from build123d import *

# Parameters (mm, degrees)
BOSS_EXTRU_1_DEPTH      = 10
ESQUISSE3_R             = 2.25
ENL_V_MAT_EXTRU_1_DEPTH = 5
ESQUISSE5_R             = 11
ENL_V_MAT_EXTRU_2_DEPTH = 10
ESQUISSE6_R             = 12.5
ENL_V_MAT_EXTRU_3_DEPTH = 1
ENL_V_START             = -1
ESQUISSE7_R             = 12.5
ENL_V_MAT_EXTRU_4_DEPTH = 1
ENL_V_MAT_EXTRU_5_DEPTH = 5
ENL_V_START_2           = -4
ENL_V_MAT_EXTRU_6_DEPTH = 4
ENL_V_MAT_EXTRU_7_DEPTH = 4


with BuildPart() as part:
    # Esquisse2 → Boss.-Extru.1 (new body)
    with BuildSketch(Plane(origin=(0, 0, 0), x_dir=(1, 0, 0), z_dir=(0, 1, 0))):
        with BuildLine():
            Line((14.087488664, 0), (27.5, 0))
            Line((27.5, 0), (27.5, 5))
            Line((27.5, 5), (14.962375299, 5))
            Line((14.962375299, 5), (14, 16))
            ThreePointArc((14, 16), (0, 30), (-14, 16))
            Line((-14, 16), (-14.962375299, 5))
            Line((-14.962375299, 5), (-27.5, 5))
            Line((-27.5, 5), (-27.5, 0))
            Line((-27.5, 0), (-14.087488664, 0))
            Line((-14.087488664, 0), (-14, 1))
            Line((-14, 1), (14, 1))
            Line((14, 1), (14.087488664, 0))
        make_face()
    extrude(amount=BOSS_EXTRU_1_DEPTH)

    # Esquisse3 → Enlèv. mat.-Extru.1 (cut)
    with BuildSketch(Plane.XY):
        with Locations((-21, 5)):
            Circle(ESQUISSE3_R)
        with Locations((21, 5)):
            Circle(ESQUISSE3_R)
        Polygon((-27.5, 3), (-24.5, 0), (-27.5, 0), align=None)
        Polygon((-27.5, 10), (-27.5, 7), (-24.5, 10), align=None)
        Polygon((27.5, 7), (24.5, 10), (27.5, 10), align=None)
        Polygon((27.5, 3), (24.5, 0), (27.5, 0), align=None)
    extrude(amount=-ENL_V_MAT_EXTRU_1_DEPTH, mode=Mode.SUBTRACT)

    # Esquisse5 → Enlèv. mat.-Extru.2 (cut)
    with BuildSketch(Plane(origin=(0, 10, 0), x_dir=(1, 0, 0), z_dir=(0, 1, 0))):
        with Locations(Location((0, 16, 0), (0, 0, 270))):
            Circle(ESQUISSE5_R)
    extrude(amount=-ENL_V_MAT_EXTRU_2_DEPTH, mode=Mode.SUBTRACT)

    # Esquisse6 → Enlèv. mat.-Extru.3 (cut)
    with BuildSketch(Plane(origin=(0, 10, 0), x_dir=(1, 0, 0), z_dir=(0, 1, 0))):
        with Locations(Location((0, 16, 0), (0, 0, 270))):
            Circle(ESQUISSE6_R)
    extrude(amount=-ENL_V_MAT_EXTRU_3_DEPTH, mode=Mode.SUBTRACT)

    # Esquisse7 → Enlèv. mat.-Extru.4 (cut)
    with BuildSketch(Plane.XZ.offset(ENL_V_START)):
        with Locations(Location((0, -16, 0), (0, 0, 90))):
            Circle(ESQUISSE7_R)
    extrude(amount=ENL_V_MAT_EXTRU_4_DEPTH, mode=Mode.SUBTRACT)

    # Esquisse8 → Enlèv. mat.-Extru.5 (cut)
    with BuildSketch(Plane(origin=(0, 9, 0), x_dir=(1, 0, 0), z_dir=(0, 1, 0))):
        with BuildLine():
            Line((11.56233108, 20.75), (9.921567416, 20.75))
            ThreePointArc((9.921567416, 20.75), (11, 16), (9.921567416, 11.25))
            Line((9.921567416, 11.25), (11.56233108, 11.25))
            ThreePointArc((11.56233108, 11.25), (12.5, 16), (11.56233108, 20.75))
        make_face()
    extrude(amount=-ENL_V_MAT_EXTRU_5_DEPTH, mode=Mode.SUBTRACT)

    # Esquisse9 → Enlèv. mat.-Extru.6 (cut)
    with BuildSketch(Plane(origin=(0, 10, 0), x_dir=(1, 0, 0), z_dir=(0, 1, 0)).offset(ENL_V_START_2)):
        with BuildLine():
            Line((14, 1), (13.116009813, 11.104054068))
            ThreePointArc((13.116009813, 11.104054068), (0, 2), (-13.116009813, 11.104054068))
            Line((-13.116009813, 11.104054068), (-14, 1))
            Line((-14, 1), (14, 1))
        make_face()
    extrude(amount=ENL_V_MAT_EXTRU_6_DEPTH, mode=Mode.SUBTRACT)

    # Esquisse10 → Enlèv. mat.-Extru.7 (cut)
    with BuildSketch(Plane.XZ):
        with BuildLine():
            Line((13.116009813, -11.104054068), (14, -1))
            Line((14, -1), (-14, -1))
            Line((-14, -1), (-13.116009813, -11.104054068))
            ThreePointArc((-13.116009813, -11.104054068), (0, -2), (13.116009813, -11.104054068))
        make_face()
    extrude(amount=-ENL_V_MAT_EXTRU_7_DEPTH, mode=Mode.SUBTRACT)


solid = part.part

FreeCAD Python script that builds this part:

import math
import FreeCAD as App
import Part
import Sketcher

V = App.Vector
Q = App.Units.Quantity

doc = App.newDocument("Part")
body = doc.addObject("PartDesign::Body", "Body")

# Sketch on XZ plane
sketch1 = body.newObject("Sketcher::SketchObject", "Sketch")
sketch1.AttachmentSupport = (doc.getObject("XZ_Plane"), [""])
sketch1.MapMode = "FlatFace"
sketch1.addGeometry([
    Part.LineSegment(V(14.087489, 0, 0), V(27.5, 0, 0)),  # 0
    Part.LineSegment(V(27.5, 0, 0), V(27.5, -5, 0)),  # 1
    Part.LineSegment(V(27.5, -5, 0), V(14.962375, -5, 0)),  # 2
    Part.LineSegment(V(14.962375, -5, 0), V(14, -16, 0)),  # 3
    Part.ArcOfCircle(Part.Circle(V(0, -16, 0), V(0, 0, 1), 14), math.radians(180), math.radians(360)),  # 4
    Part.LineSegment(V(-14, -16, 0), V(-14.962375, -5, 0)),  # 5
    Part.LineSegment(V(-14.962375, -5, 0), V(-27.5, -5, 0)),  # 6
    Part.LineSegment(V(-27.5, -5, 0), V(-27.5, 0, 0)),  # 7
    Part.LineSegment(V(-27.5, 0, 0), V(-14.087489, 0, 0)),  # 8
    Part.LineSegment(V(-14.087489, 0, 0), V(-14, -1, 0)),  # 9
    Part.LineSegment(V(-14, -1, 0), V(14, -1, 0)),  # 10
    Part.LineSegment(V(14, -1, 0), V(14.087489, 0, 0)),  # 11
], False)
sketch1.addConstraint([
    Sketcher.Constraint("Coincident", 0, 2, 1, 1),
    Sketcher.Constraint("Coincident", 1, 2, 2, 1),
    Sketcher.Constraint("Coincident", 2, 2, 3, 1),
    Sketcher.Constraint("Coincident", 3, 2, 4, 2),
    Sketcher.Constraint("Coincident", 4, 1, 5, 1),
    Sketcher.Constraint("Coincident", 5, 2, 6, 1),
    Sketcher.Constraint("Coincident", 6, 2, 7, 1),
    Sketcher.Constraint("Coincident", 7, 2, 8, 1),
    Sketcher.Constraint("Coincident", 8, 2, 9, 1),
    Sketcher.Constraint("Coincident", 9, 2, 10, 1),
    Sketcher.Constraint("Coincident", 10, 2, 11, 1),
    Sketcher.Constraint("Coincident", 11, 2, 0, 1),
    Sketcher.Constraint("Horizontal", 0),
    Sketcher.Constraint("Vertical", 1),
    Sketcher.Constraint("Horizontal", 2),
    Sketcher.Constraint("Horizontal", 6),
    Sketcher.Constraint("Vertical", 7),
    Sketcher.Constraint("Horizontal", 8),
    Sketcher.Constraint("Horizontal", 10),
    Sketcher.Constraint("Symmetric", 0, 2, 7, 2, -1, 1),
    Sketcher.Constraint("Symmetric", 3, 2, 4, 1, -2),
    Sketcher.Constraint("Symmetric", 2, 2, 5, 2, -2),
    Sketcher.Constraint("Symmetric", 8, 2, 11, 2, -2),
    Sketcher.Constraint("Parallel", 5, 9),
    Sketcher.Constraint("Parallel", 3, 11),
    Sketcher.Constraint("Horizontal", 4, 3, 3, 2),
    Sketcher.Constraint("Vertical", 4, 1, 9, 2),
    Sketcher.Constraint("Radius", 4, Q("14 mm")),
    Sketcher.Constraint("DistanceY", 1, 2, 1, 1, Q("5 mm")),
    Sketcher.Constraint("Angle", 3, Q("-95 deg")),
    Sketcher.Constraint("DistanceY", 4, 3, -1, 1, Q("16 mm")),
    Sketcher.Constraint("DistanceY", 9, 2, -1, 1, Q("1 mm")),
    Sketcher.Constraint("DistanceX", -1, 1, 0, 2, Q("27.5 mm")),
])
pad1 = body.newObject("PartDesign::Pad", "Pad")
pad1.Profile = sketch1
pad1.Length = 10
pad1.Reversed = True

# Sketch on XY plane
sketch2 = body.newObject("Sketcher::SketchObject", "Sketch001")
sketch2.AttachmentSupport = (doc.getObject("XY_Plane"), [""])
sketch2.MapMode = "FlatFace"
sketch2.addGeometry([
    Part.Circle(V(-21, 5, 0), V(0, 0, 1), 2.25),  # 0
    Part.Circle(V(21, 5, 0), V(0, 0, 1), 2.25),  # 1
    Part.LineSegment(V(-24.5, 0, 0), V(-27.5, 3, 0)),  # 2
    Part.LineSegment(V(-27.5, 3, 0), V(-27.5, 0, 0)),  # 3
    Part.LineSegment(V(-27.5, 0, 0), V(-24.5, 0, 0)),  # 4
    Part.LineSegment(V(-27.5, 10, 0), V(-27.5, 7, 0)),  # 5
    Part.LineSegment(V(-27.5, 7, 0), V(-24.5, 10, 0)),  # 6
    Part.LineSegment(V(-24.5, 10, 0), V(-27.5, 10, 0)),  # 7
    Part.LineSegment(V(24.5, 10, 0), V(27.5, 7, 0)),  # 8
    Part.LineSegment(V(27.5, 7, 0), V(27.5, 10, 0)),  # 9
    Part.LineSegment(V(27.5, 10, 0), V(24.5, 10, 0)),  # 10
    Part.LineSegment(V(27.5, 3, 0), V(24.5, 0, 0)),  # 11
    Part.LineSegment(V(24.5, 0, 0), V(27.5, 0, 0)),  # 12
    Part.LineSegment(V(27.5, 0, 0), V(27.5, 3, 0)),  # 13
], False)
sketch2.addConstraint([
    Sketcher.Constraint("Coincident", 2, 2, 3, 1),
    Sketcher.Constraint("Coincident", 3, 2, 4, 1),
    Sketcher.Constraint("Coincident", 4, 2, 2, 1),
    Sketcher.Constraint("Coincident", 5, 2, 6, 1),
    Sketcher.Constraint("Coincident", 6, 2, 7, 1),
    Sketcher.Constraint("Coincident", 7, 2, 5, 1),
    Sketcher.Constraint("Coincident", 8, 2, 9, 1),
    Sketcher.Constraint("Coincident", 9, 2, 10, 1),
    Sketcher.Constraint("Coincident", 10, 2, 8, 1),
    Sketcher.Constraint("Coincident", 11, 2, 12, 1),
    Sketcher.Constraint("Coincident", 12, 2, 13, 1),
    Sketcher.Constraint("Coincident", 13, 2, 11, 1),
    Sketcher.Constraint("Vertical", 3),
    Sketcher.Constraint("Horizontal", 4),
    Sketcher.Constraint("Vertical", 5),
    Sketcher.Constraint("Horizontal", 7),
    Sketcher.Constraint("Vertical", 9),
    Sketcher.Constraint("Horizontal", 10),
    Sketcher.Constraint("Horizontal", 12),
    Sketcher.Constraint("Vertical", 13),
    Sketcher.Constraint("Equal", 0, 1),
    Sketcher.Constraint("Symmetric", 4, 2, 11, 2, -1, 1),
    Sketcher.Constraint("Symmetric", 0, 3, 1, 3, -2),
    Sketcher.Constraint("Symmetric", 5, 2, 8, 2, -2),
    Sketcher.Constraint("Symmetric", 6, 2, 10, 2, -2),
    Sketcher.Constraint("Symmetric", 3, 2, 12, 2, -2),
    Sketcher.Constraint("Perpendicular", 2, 6),
    Sketcher.Constraint("Perpendicular", 6, 8),
    Sketcher.Constraint("Perpendicular", 8, 11),
    Sketcher.Constraint("Vertical", 3, 2, 5, 2),
    Sketcher.Constraint("Vertical", 4, 2, 6, 2),
    Sketcher.Constraint("Diameter", 0, Q("4.5 mm")),
    Sketcher.Constraint("DistanceX", 4, 1, 4, 2, Q("3 mm")),
    Sketcher.Constraint("DistanceX", 0, 3, -1, 1, Q("21 mm")),
    Sketcher.Constraint("DistanceY", -1, 1, 0, 3, Q("5 mm")),
    Sketcher.Constraint("DistanceY", -1, 1, 5, 2, Q("7 mm")),
    Sketcher.Constraint("DistanceX", 6, 2, 8, 2, Q("52 mm")),
])
pocket1 = body.newObject("PartDesign::Pocket", "Pocket")
pocket1.Profile = sketch2
pocket1.Length = 5

# Sketch on XZ plane
sketch3 = body.newObject("Sketcher::SketchObject", "Sketch002")
sketch3.AttachmentSupport = (doc.getObject("XZ_Plane"), [""])
sketch3.MapMode = "FlatFace"
sketch3.AttachmentOffset = App.Placement(V(0, 0, -10), App.Rotation())
sketch3.addGeometry(Part.Circle(V(0, -16, 0), V(0, 0, 1), 11), False)
sketch3.addConstraint([
    Sketcher.Constraint("PointOnObject", 0, 3, -2),
    Sketcher.Constraint("Diameter", 0, Q("22 mm")),
    Sketcher.Constraint("DistanceY", 0, 3, -1, 1, Q("16 mm")),
])
pocket2 = body.newObject("PartDesign::Pocket", "Pocket001")
pocket2.Profile = sketch3
pocket2.Length = 10
pocket2.Reversed = True

# Sketch on XZ plane
sketch4 = body.newObject("Sketcher::SketchObject", "Sketch003")
sketch4.AttachmentSupport = (doc.getObject("XZ_Plane"), [""])
sketch4.MapMode = "FlatFace"
sketch4.AttachmentOffset = App.Placement(V(0, 0, -10), App.Rotation())
sketch4.addGeometry(Part.Circle(V(0, -16, 0), V(0, 0, 1), 12.5), False)
sketch4.addConstraint([
    Sketcher.Constraint("PointOnObject", 0, 3, -2),
    Sketcher.Constraint("Diameter", 0, Q("25 mm")),
    Sketcher.Constraint("DistanceY", 0, 3, -1, 1, Q("16 mm")),
])
pocket3 = body.newObject("PartDesign::Pocket", "Pocket002")
pocket3.Profile = sketch4
pocket3.Length = 1
pocket3.Reversed = True

# Sketch on XZ plane
sketch5 = body.newObject("Sketcher::SketchObject", "Sketch004")
sketch5.AttachmentSupport = (doc.getObject("XZ_Plane"), [""])
sketch5.MapMode = "FlatFace"
sketch5.AttachmentOffset = App.Placement(V(0, 0, -1), App.Rotation())
sketch5.addGeometry(Part.Circle(V(0, -16, 0), V(0, 0, 1), 12.5), False)
sketch5.addConstraint([
    Sketcher.Constraint("PointOnObject", 0, 3, -2),
    Sketcher.Constraint("Diameter", 0, Q("25 mm")),
    Sketcher.Constraint("DistanceY", 0, 3, -1, 1, Q("16 mm")),
])
pocket4 = body.newObject("PartDesign::Pocket", "Pocket003")
pocket4.Profile = sketch5
pocket4.Length = 1
pocket4.Reversed = True

# Sketch on XZ plane
sketch6 = body.newObject("Sketcher::SketchObject", "Sketch005")
sketch6.AttachmentSupport = (doc.getObject("XZ_Plane"), [""])
sketch6.MapMode = "FlatFace"
sketch6.AttachmentOffset = App.Placement(V(0, 0, -9), App.Rotation())
sketch6.addGeometry([
    Part.LineSegment(V(11.562331, -20.75, 0), V(9.921567, -20.75, 0)),
    Part.ArcOfCircle(Part.Circle(V(0, -16, 0), V(0, 0, 1), 11), math.radians(-25.583002), math.radians(25.583002)),
    Part.LineSegment(V(9.921567, -11.25, 0), V(11.562331, -11.25, 0)),
    Part.ArcOfCircle(Part.Circle(V(0, -16, 0), V(0, 0, 1), 12.5), math.radians(-22.333683), math.radians(22.333683)),
], False)
sketch6.addConstraint([
    Sketcher.Constraint("Coincident", 0, 2, 1, 1),
    Sketcher.Constraint("Coincident", 1, 2, 2, 1),
    Sketcher.Constraint("Coincident", 2, 2, 3, 2),
    Sketcher.Constraint("Coincident", 3, 1, 0, 1),
    Sketcher.Constraint("Horizontal", 0),
    Sketcher.Constraint("Horizontal", 2),
    Sketcher.Constraint("Coincident", 3, 3, 1, 3),
    Sketcher.Constraint("PointOnObject", 1, 3, -2),
    Sketcher.Constraint("Vertical", 0, 2, 1, 2),
    Sketcher.Constraint("Radius", 1, Q("11 mm")),
    Sketcher.Constraint("Radius", 3, Q("12.5 mm")),
    Sketcher.Constraint("DistanceY", 1, 3, -1, 1, Q("16 mm")),
    Sketcher.Constraint("DistanceY", 0, 2, 1, 2, Q("9.5 mm")),
])
pocket5 = body.newObject("PartDesign::Pocket", "Pocket004")
pocket5.Profile = sketch6
pocket5.Length = 5
pocket5.Reversed = True

# Sketch on XZ plane
sketch7 = body.newObject("Sketcher::SketchObject", "Sketch006")
sketch7.AttachmentSupport = (doc.getObject("XZ_Plane"), [""])
sketch7.MapMode = "FlatFace"
sketch7.AttachmentOffset = App.Placement(V(0, 0, -6), App.Rotation())
sketch7.addGeometry([
    Part.LineSegment(V(14, -1, 0), V(13.11601, -11.104054, 0)),
    Part.ArcOfCircle(Part.Circle(V(0, -16, 0), V(0, 0, 1), 14), math.radians(20.469604), math.radians(159.530396)),
    Part.LineSegment(V(-13.11601, -11.104054, 0), V(-14, -1, 0)),
    Part.LineSegment(V(-14, -1, 0), V(14, -1, 0)),
], False)
sketch7.addConstraint([
    Sketcher.Constraint("Coincident", 0, 2, 1, 1),
    Sketcher.Constraint("Coincident", 1, 2, 2, 1),
    Sketcher.Constraint("Coincident", 2, 2, 3, 1),
    Sketcher.Constraint("Coincident", 3, 2, 0, 1),
    Sketcher.Constraint("Horizontal", 3),
    Sketcher.Constraint("Symmetric", 0, 2, 1, 2, -2),
    Sketcher.Constraint("Equal", 0, 2),
    Sketcher.Constraint("Radius", 1, Q("14 mm")),
    Sketcher.Constraint("DistanceX", 3, 1, 3, 2, Q("28 mm")),
    Sketcher.Constraint("Angle", 0, Q("-95 deg")),
    Sketcher.Constraint("DistanceY", 1, 3, -1, 1, Q("16 mm")),
    Sketcher.Constraint("DistanceY", 2, 2, -1, 1, Q("1 mm")),
])
pocket6 = body.newObject("PartDesign::Pocket", "Pocket005")
pocket6.Profile = sketch7
pocket6.Length = 4

# Sketch on XZ plane
sketch8 = body.newObject("Sketcher::SketchObject", "Sketch007")
sketch8.AttachmentSupport = (doc.getObject("XZ_Plane"), [""])
sketch8.MapMode = "FlatFace"
sketch8.addGeometry([
    Part.LineSegment(V(13.11601, -11.104054, 0), V(14, -1, 0)),
    Part.LineSegment(V(14, -1, 0), V(-14, -1, 0)),
    Part.LineSegment(V(-14, -1, 0), V(-13.11601, -11.104054, 0)),
    Part.ArcOfCircle(Part.Circle(V(0, -16, 0), V(0, 0, 1), 14), math.radians(20.469604), math.radians(159.530396)),
], False)
sketch8.addConstraint([
    Sketcher.Constraint("Coincident", 0, 2, 1, 1),
    Sketcher.Constraint("Coincident", 1, 2, 2, 1),
    Sketcher.Constraint("Coincident", 2, 2, 3, 2),
    Sketcher.Constraint("Coincident", 3, 1, 0, 1),
    Sketcher.Constraint("Horizontal", 1),
    Sketcher.Constraint("Symmetric", 2, 2, 3, 1, -2),
    Sketcher.Constraint("Equal", 0, 2),
    Sketcher.Constraint("Radius", 3, Q("14 mm")),
    Sketcher.Constraint("DistanceX", 1, 2, 1, 1, Q("28 mm")),
    Sketcher.Constraint("Angle", 0, Q("85 deg")),
    Sketcher.Constraint("DistanceY", 3, 3, -1, 1, Q("16 mm")),
    Sketcher.Constraint("DistanceY", 0, 2, -1, 1, Q("1 mm")),
])
pocket7 = body.newObject("PartDesign::Pocket", "Pocket006")
pocket7.Profile = sketch8
pocket7.Length = 4

doc.recompute()
